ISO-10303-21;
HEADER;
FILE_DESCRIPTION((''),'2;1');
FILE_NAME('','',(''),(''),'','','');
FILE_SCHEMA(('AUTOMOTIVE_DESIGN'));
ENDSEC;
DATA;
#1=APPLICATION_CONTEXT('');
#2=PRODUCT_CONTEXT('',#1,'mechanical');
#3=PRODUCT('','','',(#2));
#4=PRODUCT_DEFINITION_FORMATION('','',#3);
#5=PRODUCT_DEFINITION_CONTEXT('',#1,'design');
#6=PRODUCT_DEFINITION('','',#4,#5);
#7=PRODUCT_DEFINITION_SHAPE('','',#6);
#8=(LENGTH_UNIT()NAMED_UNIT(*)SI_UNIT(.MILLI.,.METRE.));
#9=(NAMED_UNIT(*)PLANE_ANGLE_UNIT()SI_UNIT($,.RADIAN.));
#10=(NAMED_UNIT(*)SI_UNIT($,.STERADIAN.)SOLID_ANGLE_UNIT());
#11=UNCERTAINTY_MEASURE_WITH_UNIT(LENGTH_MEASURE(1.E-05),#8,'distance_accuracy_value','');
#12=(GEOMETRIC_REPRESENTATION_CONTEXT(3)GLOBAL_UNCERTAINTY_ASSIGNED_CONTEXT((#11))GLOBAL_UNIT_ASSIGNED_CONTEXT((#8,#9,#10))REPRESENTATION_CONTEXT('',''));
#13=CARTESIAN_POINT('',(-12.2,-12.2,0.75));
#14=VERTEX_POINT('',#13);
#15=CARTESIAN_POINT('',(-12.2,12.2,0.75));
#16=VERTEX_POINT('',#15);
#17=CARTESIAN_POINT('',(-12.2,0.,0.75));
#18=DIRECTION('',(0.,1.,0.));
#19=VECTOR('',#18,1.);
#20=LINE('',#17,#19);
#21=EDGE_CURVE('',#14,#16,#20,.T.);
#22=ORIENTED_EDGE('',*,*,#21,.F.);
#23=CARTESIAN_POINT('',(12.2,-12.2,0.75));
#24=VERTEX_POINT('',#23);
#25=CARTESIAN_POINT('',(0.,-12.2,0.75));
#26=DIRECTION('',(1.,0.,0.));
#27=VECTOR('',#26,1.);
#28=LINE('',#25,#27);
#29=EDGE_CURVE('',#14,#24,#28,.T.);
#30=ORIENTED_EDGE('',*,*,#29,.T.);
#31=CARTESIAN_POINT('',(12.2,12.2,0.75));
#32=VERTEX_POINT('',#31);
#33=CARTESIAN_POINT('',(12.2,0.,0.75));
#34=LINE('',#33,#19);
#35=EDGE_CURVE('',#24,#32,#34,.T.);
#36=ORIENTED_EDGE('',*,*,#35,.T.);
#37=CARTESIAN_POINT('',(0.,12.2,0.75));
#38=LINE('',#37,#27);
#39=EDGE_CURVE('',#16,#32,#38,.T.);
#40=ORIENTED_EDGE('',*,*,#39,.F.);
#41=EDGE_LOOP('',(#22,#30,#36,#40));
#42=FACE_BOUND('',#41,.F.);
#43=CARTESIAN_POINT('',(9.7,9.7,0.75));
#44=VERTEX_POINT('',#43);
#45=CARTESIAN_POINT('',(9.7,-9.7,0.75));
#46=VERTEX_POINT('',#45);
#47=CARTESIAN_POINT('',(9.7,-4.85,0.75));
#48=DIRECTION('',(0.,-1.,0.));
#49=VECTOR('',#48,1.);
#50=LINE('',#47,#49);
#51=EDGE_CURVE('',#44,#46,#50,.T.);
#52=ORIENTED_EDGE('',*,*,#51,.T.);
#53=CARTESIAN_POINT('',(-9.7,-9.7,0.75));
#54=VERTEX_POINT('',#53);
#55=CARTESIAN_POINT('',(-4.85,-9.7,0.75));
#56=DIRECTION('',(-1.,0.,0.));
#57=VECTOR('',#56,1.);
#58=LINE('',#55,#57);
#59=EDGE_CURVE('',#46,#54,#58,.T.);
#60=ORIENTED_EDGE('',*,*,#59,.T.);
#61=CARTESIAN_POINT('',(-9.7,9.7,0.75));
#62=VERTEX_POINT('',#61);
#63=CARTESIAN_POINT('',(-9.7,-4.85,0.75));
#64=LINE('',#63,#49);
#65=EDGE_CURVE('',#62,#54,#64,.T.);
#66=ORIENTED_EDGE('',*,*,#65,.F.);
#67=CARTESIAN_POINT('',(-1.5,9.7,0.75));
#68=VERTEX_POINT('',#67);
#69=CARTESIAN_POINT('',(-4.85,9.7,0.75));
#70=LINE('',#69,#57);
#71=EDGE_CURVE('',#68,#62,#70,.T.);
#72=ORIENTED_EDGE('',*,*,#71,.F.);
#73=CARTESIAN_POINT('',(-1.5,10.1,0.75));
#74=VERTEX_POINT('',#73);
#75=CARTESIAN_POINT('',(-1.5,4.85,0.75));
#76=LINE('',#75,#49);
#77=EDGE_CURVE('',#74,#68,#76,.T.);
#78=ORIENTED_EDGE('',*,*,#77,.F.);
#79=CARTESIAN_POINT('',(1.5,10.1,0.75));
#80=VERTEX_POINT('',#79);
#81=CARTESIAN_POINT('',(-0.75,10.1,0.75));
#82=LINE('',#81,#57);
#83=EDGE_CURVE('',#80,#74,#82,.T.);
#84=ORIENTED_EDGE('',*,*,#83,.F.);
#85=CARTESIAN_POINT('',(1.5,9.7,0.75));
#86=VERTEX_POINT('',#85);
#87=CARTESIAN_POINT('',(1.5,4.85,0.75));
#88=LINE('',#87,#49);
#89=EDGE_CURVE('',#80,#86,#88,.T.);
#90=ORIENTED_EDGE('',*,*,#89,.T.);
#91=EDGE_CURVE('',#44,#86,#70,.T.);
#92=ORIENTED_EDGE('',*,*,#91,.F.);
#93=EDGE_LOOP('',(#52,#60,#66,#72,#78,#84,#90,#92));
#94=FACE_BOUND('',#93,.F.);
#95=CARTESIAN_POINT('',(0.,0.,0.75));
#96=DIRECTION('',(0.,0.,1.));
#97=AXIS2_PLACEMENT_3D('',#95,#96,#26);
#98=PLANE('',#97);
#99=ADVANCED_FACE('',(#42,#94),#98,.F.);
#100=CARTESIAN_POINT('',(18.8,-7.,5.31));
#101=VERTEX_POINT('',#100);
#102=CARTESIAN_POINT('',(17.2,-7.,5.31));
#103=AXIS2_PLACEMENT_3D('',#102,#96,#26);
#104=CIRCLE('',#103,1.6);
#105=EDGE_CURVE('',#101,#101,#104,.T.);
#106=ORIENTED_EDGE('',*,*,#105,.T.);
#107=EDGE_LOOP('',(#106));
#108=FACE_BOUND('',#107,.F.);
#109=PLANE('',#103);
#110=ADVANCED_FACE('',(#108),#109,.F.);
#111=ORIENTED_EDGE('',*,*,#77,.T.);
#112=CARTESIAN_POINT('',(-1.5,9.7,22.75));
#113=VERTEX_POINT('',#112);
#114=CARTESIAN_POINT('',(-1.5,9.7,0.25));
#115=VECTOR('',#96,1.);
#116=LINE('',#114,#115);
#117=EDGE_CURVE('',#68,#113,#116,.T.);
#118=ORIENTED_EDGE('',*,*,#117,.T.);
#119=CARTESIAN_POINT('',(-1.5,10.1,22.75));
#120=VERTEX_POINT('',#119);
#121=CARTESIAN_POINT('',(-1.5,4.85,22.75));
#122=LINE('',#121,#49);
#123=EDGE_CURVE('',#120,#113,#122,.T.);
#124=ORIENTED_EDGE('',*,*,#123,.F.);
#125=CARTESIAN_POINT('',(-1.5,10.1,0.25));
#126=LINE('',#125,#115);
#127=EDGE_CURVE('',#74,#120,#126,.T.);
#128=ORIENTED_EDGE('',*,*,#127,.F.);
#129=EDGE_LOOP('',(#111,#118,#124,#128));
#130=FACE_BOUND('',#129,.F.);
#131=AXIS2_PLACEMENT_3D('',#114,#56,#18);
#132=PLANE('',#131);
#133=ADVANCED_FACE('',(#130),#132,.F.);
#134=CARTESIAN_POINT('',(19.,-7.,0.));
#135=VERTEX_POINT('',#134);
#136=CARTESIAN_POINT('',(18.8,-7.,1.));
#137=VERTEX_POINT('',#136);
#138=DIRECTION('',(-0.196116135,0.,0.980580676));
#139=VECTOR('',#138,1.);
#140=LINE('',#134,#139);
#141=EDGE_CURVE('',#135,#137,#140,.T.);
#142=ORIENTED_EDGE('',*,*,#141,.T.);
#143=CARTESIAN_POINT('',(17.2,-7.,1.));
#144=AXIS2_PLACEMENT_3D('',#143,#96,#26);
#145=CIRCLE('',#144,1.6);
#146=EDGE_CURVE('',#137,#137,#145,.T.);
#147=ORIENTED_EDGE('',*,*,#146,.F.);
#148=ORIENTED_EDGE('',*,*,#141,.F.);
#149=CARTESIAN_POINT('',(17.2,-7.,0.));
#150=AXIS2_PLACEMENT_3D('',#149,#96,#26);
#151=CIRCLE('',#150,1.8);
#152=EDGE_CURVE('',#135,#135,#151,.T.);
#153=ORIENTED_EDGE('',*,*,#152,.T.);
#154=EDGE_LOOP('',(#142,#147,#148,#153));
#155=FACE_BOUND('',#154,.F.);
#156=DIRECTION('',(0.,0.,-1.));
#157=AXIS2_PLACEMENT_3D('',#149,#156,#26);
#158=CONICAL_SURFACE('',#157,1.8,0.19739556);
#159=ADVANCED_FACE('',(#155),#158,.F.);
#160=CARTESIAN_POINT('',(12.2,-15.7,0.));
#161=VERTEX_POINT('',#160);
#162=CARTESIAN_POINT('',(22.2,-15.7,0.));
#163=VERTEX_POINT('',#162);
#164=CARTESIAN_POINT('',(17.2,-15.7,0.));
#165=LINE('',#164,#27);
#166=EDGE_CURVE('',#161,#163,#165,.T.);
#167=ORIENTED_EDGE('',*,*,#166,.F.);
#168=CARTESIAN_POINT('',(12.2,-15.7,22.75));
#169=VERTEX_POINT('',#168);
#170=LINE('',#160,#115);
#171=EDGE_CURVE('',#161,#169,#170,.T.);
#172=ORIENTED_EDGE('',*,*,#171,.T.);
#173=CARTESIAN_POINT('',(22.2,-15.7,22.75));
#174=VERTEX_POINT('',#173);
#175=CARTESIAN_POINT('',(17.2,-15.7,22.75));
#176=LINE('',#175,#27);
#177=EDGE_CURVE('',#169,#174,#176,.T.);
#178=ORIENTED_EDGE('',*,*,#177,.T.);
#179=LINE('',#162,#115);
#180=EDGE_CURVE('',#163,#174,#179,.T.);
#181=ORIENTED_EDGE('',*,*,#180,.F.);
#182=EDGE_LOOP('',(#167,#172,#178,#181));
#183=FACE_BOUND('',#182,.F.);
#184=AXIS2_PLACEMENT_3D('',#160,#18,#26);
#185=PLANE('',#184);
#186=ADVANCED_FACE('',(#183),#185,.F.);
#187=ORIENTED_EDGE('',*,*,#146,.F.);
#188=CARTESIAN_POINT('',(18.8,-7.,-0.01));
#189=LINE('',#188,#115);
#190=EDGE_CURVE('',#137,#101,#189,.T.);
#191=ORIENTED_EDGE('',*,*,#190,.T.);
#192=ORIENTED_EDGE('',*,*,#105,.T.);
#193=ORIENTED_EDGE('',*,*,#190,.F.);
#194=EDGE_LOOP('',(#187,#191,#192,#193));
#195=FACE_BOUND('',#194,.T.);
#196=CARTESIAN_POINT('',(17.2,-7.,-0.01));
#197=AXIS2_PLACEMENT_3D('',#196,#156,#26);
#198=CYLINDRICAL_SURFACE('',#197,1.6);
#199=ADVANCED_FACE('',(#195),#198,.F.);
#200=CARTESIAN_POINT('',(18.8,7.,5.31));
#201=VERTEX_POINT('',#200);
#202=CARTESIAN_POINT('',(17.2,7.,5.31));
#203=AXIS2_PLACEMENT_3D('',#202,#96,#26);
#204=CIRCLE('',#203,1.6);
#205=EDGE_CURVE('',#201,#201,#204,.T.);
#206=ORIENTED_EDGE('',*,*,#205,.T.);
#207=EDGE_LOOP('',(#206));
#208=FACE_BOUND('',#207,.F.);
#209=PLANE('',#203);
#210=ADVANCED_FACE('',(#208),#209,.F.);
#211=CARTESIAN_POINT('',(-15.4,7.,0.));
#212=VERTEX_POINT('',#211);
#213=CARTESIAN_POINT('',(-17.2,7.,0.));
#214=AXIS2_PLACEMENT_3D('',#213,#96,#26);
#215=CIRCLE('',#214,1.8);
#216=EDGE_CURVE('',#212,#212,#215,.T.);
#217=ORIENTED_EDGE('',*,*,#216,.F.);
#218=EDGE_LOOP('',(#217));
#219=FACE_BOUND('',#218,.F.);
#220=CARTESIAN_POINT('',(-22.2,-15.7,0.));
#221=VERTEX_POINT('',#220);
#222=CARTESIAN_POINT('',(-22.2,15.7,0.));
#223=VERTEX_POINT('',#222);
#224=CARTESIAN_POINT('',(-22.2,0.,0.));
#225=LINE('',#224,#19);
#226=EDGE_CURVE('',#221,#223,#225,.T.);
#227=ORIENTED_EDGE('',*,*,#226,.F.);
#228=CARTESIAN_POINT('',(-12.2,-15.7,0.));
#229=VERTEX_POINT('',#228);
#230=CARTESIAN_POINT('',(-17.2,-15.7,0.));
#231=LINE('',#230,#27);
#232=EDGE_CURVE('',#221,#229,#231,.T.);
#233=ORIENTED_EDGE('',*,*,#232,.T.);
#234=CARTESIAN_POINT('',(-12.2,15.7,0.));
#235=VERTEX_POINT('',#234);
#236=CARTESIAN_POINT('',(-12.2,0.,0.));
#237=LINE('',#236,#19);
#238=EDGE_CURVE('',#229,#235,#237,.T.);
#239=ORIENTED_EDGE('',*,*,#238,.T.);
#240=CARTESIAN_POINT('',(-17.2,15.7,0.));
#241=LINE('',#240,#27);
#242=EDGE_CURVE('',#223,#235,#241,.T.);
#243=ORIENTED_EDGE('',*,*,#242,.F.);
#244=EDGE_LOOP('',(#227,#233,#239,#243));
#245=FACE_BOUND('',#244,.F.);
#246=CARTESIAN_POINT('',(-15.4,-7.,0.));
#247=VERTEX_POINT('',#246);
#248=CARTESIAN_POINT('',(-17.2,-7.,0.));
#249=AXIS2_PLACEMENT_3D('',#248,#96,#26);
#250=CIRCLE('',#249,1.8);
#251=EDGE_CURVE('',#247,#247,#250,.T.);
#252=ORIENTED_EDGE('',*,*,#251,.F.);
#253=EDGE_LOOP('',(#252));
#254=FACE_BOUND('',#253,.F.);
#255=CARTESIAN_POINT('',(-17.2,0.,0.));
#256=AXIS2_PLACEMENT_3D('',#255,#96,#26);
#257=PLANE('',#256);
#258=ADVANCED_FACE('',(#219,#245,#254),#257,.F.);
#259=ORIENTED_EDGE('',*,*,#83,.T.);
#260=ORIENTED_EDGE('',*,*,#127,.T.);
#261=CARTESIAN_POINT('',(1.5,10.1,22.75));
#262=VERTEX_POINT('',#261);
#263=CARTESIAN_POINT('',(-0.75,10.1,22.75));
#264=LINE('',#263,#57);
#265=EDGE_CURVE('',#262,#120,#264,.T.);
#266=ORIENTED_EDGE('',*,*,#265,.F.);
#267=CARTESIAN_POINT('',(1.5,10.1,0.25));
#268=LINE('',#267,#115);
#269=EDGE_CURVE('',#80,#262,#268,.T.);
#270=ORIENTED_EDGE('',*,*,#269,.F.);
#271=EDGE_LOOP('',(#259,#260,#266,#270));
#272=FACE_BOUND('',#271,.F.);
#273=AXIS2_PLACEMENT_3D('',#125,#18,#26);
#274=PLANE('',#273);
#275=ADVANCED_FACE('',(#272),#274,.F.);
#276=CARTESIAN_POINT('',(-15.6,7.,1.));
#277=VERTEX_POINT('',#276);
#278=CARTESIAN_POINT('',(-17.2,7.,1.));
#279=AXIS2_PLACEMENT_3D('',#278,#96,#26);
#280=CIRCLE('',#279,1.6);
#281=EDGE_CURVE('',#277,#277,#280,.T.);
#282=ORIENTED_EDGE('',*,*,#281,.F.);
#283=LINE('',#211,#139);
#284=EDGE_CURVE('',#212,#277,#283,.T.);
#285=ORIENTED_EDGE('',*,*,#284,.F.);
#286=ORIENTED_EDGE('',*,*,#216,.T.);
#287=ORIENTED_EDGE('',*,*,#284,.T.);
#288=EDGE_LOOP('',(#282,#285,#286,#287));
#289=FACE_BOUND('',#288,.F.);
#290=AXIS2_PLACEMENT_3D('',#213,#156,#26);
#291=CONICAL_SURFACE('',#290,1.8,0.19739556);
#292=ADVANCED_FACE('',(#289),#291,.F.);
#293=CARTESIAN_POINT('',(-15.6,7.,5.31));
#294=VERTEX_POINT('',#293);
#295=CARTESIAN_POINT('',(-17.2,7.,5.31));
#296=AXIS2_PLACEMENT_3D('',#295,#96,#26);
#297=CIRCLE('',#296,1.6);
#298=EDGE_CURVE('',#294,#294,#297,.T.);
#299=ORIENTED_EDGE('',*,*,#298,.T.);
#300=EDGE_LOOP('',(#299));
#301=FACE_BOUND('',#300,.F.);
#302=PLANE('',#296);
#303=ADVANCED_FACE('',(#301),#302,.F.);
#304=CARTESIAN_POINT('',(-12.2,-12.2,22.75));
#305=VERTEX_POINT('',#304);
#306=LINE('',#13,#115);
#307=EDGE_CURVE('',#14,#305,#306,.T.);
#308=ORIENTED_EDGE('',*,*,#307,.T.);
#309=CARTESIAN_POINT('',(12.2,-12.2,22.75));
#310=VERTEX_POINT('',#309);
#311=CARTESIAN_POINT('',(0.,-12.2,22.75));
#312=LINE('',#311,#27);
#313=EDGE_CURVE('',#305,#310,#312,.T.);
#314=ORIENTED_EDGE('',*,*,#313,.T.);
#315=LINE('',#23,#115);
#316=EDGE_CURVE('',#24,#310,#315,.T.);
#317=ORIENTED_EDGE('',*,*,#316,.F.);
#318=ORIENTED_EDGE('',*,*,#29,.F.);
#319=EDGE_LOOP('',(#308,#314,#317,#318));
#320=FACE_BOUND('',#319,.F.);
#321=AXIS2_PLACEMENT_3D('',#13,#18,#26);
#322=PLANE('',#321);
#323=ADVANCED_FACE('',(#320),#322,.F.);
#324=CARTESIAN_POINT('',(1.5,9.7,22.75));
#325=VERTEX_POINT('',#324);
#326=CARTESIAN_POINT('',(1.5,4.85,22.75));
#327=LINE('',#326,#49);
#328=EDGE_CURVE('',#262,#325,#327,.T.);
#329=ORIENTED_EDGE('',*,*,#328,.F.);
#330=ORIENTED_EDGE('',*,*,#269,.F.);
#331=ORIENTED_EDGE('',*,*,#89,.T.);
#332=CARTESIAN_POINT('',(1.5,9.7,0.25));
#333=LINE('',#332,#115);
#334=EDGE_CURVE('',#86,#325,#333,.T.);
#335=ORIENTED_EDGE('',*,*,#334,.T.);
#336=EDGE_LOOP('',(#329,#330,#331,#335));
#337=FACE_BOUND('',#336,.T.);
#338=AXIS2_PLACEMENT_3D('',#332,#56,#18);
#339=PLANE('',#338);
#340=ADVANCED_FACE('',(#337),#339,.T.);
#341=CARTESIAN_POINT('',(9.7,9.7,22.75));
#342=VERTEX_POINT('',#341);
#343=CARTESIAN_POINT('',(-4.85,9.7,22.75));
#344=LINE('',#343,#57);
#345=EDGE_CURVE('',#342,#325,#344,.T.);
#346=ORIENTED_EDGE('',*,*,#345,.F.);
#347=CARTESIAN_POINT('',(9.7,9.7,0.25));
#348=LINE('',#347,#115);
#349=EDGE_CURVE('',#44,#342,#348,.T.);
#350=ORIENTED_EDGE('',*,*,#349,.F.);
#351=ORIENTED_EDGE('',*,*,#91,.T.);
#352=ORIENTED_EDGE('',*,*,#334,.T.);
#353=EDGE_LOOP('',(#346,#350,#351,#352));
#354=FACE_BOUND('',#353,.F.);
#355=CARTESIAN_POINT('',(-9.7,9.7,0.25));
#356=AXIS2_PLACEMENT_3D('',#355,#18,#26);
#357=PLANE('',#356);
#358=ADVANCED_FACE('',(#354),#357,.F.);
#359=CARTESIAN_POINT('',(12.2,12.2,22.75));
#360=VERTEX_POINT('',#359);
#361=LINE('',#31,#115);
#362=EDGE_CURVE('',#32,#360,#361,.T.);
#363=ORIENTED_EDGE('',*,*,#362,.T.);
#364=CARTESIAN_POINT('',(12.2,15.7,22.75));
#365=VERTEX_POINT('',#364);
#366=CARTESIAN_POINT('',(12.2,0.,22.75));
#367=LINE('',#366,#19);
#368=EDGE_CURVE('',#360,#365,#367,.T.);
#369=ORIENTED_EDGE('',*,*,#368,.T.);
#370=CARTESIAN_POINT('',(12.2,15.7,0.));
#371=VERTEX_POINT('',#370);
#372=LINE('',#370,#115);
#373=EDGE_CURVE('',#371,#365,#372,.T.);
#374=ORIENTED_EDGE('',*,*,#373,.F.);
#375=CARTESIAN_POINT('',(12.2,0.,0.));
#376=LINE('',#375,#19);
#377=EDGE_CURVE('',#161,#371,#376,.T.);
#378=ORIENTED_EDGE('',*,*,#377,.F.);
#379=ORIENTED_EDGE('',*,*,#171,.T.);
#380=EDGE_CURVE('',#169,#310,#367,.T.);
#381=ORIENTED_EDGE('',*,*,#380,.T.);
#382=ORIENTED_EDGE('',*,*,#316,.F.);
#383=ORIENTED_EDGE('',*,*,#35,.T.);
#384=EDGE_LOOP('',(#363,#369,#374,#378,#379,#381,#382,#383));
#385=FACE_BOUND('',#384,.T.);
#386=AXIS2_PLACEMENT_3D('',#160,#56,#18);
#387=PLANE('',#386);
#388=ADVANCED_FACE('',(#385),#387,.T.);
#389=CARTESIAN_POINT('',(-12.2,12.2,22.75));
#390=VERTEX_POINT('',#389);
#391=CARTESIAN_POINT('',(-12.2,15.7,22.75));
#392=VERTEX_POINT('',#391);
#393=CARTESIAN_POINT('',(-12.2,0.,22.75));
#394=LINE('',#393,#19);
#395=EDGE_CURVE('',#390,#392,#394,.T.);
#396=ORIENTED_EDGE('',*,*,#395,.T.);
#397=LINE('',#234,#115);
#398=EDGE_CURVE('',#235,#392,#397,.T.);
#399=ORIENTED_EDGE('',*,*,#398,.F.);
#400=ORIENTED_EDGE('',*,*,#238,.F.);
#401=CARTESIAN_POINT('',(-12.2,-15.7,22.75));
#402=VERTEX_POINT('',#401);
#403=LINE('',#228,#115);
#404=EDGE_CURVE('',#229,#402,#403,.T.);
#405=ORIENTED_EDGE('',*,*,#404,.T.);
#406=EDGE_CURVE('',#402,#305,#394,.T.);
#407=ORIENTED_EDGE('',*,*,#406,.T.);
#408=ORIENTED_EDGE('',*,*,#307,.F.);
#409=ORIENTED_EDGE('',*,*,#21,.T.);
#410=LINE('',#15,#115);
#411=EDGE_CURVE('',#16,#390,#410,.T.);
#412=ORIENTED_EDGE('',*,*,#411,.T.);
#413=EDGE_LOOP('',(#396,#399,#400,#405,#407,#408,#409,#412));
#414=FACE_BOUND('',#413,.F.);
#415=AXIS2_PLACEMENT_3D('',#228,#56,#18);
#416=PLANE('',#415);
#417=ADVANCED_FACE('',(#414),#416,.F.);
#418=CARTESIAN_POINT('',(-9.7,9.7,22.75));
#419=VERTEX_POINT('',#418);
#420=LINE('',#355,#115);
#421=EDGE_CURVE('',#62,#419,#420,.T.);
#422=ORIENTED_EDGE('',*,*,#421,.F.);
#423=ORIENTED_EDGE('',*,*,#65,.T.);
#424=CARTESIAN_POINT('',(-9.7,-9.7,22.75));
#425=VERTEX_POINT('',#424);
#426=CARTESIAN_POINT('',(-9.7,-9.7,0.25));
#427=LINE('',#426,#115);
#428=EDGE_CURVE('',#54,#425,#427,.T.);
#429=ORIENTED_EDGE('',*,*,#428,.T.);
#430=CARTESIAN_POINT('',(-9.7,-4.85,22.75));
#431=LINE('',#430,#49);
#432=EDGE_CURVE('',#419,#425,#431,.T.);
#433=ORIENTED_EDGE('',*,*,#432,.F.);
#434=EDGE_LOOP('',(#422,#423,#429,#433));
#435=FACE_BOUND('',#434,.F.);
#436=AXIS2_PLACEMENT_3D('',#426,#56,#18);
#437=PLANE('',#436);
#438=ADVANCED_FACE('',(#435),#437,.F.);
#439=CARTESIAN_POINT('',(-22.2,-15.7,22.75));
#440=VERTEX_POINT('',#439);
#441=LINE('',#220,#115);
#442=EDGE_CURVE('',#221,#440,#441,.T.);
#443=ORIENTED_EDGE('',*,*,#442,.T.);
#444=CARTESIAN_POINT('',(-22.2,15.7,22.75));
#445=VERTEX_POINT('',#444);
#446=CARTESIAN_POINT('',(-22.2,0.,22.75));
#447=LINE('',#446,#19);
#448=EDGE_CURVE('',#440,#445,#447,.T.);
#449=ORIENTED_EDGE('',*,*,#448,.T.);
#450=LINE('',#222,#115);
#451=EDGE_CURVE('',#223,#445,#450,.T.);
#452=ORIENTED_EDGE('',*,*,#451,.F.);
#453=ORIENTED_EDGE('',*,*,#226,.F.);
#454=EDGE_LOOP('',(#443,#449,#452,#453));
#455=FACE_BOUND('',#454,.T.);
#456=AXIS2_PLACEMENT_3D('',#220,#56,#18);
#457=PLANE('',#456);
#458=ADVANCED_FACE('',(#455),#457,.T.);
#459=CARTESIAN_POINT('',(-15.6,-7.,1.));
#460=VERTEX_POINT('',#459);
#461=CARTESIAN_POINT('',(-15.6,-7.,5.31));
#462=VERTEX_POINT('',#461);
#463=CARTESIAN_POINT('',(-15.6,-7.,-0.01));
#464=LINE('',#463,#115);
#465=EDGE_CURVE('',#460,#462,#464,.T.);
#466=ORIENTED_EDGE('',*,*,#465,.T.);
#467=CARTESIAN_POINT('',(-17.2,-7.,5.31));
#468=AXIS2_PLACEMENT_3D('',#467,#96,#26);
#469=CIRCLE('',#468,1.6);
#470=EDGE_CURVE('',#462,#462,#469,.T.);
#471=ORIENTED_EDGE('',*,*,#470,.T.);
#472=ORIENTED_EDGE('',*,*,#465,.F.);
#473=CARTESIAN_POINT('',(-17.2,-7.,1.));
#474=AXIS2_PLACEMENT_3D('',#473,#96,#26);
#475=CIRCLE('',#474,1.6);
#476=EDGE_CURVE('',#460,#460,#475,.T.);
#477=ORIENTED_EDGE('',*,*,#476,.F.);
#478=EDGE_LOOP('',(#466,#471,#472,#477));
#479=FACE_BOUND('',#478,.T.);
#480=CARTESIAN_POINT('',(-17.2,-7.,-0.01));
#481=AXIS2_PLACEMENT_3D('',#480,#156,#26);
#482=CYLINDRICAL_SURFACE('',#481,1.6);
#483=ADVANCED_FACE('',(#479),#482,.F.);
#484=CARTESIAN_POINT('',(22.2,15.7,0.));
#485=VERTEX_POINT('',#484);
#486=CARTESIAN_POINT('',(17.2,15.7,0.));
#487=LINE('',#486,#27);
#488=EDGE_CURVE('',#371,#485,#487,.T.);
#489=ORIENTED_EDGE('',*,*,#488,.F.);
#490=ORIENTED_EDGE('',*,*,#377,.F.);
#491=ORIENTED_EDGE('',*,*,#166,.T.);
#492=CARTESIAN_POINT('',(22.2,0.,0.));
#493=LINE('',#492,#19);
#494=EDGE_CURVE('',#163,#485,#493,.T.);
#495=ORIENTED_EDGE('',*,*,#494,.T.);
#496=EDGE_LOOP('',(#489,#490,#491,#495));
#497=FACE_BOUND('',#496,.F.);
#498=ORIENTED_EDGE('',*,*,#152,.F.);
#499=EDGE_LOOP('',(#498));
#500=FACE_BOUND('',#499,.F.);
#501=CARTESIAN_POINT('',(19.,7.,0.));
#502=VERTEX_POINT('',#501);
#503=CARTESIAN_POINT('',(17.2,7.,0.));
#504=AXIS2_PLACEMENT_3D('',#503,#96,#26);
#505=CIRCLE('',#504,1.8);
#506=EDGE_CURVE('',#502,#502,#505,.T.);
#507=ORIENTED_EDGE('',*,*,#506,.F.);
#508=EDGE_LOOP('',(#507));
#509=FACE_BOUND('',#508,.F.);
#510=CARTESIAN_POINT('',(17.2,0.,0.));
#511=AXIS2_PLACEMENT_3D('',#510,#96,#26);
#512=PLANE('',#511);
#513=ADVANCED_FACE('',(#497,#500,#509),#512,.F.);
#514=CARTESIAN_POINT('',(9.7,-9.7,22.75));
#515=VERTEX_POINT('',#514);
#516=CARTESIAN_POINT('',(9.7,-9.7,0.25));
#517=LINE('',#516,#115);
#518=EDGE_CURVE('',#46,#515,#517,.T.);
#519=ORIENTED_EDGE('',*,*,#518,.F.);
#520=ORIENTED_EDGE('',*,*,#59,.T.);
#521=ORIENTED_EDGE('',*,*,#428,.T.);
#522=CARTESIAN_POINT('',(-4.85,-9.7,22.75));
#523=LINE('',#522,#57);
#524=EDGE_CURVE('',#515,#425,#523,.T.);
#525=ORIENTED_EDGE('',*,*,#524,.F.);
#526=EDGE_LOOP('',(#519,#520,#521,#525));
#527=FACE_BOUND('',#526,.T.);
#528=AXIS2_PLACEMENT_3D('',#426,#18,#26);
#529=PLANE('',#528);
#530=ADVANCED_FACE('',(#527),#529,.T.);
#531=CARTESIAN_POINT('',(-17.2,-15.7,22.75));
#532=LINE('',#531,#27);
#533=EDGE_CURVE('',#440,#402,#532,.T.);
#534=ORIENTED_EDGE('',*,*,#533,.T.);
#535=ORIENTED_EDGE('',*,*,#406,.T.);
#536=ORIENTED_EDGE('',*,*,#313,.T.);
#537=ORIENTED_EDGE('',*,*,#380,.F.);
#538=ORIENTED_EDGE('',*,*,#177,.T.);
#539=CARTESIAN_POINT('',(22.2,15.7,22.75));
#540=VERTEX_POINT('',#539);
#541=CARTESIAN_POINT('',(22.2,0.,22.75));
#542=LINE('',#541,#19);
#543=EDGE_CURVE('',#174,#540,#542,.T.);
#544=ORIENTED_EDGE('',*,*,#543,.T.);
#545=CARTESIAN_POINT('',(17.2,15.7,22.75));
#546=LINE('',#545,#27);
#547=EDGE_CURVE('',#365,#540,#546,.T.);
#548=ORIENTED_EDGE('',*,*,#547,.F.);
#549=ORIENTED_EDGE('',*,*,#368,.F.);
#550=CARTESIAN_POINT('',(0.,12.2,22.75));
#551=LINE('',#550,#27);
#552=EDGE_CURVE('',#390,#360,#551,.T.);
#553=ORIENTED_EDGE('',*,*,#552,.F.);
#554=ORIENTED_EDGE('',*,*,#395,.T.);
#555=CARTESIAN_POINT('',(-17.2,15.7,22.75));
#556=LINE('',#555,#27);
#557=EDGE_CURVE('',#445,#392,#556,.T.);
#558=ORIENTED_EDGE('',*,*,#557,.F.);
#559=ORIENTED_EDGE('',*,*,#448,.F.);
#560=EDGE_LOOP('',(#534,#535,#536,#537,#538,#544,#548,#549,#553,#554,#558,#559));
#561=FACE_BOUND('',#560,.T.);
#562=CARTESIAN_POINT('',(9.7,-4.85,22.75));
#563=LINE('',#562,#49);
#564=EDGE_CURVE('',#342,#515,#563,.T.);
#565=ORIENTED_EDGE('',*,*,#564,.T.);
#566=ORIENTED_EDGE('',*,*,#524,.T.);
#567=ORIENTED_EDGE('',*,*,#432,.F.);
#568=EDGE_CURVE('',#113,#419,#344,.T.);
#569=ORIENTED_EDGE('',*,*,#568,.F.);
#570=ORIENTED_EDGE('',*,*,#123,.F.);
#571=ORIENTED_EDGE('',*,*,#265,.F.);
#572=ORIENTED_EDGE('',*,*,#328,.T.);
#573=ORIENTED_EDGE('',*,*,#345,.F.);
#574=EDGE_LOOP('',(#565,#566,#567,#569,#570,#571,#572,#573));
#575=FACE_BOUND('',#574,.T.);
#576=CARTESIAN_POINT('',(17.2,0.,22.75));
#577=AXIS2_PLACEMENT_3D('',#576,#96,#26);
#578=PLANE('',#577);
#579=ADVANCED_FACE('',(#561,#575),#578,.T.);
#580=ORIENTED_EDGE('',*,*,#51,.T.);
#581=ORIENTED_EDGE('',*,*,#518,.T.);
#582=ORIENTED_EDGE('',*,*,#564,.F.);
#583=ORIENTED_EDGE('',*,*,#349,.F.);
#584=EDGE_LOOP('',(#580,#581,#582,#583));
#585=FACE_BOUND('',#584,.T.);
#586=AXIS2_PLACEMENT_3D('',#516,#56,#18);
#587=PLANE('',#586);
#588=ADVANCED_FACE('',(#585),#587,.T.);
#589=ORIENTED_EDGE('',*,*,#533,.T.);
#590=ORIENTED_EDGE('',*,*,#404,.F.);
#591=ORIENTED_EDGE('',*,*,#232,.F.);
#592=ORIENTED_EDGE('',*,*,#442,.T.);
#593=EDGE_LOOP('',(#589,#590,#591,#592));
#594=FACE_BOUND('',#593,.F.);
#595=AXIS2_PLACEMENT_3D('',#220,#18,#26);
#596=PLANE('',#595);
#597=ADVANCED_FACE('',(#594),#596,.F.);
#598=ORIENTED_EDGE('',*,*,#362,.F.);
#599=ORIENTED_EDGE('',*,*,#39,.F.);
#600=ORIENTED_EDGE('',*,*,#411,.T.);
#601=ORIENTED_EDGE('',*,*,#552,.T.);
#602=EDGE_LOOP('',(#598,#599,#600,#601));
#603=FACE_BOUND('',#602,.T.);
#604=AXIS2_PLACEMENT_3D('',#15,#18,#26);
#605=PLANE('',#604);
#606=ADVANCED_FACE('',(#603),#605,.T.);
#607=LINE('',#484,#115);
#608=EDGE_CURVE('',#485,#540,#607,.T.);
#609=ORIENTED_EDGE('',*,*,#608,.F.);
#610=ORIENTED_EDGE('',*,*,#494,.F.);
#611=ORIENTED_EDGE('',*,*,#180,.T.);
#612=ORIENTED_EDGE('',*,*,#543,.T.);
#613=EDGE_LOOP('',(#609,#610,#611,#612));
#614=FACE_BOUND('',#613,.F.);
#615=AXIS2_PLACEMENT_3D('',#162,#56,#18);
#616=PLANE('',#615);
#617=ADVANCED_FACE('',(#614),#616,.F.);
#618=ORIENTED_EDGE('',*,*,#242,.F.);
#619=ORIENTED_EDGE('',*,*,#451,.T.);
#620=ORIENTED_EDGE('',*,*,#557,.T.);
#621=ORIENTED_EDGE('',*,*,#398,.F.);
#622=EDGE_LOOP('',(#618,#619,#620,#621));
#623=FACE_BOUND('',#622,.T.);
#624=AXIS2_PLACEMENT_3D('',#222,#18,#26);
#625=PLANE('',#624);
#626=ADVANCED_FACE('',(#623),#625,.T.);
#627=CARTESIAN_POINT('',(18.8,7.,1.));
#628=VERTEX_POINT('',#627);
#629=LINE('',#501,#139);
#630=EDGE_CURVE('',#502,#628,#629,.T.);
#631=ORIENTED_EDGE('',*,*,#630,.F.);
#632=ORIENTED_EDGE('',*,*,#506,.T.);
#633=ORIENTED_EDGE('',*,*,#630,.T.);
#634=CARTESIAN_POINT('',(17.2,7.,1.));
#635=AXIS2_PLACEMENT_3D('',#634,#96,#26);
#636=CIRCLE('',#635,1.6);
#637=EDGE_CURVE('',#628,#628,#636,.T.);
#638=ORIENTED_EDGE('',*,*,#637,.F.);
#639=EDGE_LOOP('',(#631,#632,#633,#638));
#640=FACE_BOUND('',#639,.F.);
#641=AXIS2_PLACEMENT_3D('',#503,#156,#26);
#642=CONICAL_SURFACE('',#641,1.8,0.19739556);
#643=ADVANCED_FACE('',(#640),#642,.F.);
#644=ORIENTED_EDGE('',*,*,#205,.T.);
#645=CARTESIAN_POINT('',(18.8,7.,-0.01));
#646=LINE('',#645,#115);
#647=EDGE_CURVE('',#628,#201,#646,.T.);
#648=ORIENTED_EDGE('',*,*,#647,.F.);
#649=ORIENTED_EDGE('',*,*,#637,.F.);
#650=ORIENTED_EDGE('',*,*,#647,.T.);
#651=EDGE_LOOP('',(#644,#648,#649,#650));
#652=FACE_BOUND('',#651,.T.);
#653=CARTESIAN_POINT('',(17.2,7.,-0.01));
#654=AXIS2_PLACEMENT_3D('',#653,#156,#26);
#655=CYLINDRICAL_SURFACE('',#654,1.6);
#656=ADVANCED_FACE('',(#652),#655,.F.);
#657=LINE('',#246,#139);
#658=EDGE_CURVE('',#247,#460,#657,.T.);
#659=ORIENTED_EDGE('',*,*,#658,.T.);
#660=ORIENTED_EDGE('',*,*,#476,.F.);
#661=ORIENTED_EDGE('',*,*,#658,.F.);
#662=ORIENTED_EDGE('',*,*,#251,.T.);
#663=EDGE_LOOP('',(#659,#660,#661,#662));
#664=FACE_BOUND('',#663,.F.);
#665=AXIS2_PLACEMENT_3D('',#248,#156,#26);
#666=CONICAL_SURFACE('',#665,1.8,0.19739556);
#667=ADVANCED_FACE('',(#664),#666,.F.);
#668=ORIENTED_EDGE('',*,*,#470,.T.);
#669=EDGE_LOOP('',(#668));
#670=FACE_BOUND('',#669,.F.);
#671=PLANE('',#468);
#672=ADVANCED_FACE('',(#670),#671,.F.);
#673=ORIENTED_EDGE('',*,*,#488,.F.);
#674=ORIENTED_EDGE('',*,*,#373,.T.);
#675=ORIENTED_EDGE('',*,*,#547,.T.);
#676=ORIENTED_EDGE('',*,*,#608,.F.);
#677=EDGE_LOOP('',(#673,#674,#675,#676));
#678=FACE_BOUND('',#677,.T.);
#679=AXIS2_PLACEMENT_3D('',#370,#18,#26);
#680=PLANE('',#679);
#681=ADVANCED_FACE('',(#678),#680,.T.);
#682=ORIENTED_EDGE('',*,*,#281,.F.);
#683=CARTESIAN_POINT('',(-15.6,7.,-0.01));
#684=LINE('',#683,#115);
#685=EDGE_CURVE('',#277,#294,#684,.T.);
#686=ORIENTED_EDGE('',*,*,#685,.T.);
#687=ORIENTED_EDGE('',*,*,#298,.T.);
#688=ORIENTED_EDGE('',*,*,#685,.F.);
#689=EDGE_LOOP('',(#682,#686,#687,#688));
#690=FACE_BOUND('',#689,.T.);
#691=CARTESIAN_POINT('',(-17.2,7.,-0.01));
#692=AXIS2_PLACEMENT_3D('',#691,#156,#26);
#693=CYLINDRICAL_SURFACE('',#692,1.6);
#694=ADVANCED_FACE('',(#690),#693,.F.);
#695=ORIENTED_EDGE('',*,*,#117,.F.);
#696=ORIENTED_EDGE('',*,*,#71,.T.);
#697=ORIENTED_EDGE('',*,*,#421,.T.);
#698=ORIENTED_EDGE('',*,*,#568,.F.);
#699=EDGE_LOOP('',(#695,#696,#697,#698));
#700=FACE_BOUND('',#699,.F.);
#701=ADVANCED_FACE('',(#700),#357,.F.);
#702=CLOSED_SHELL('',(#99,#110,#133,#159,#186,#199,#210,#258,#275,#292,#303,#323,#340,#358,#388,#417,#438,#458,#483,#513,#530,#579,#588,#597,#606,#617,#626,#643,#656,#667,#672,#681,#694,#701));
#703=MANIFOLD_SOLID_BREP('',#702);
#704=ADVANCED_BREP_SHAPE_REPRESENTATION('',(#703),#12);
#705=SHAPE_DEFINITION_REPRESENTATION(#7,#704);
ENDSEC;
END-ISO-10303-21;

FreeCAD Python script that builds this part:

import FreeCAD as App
import Part
import Sketcher

doc = App.newDocument("Part")
body = doc.addObject("PartDesign::Body", "Body")

sketch1 = body.newObject("Sketcher::SketchObject", "Sketch")
sketch1.AttachmentSupport = (doc.getObject("XZ_Plane"), [""])
sketch1.MapMode = "FlatFace"
sketch1.addGeometry(Part.LineSegment(App.Vector(0, 0, 0), App.Vector(1.8, 0, 0)), False)
sketch1.addGeometry(Part.LineSegment(App.Vector(1.8, 0, 0), App.Vector(1.6, 1, 0)), False)
sketch1.addGeometry(Part.LineSegment(App.Vector(1.6, 1, 0), App.Vector(0, 1, 0)), False)
sketch1.addGeometry(Part.LineSegment(App.Vector(0, 1, 0), App.Vector(0, 0, 0)), False)
sketch1.addConstraint(Sketcher.Constraint("Coincident", 0, 2, 1, 1))
sketch1.addConstraint(Sketcher.Constraint("Coincident", 1, 2, 2, 1))
sketch1.addConstraint(Sketcher.Constraint("Coincident", 2, 2, 3, 1))
sketch1.addConstraint(Sketcher.Constraint("Coincident", 3, 2, 0, 1))
sketch1.addConstraint(Sketcher.Constraint("Horizontal", 0))
sketch1.addConstraint(Sketcher.Constraint("Horizontal", 2))
sketch1.addConstraint(Sketcher.Constraint("Vertical", 3))
sketch1.addConstraint(Sketcher.Constraint("Coincident", 3, 2, -1, 1))
sketch1.addConstraint(Sketcher.Constraint("DistanceY", 3, 2, 3, 1, 1.0))
sketch1.addConstraint(Sketcher.Constraint("DistanceX", 0, 1, 0, 2, 1.8))
sketch1.addConstraint(Sketcher.Constraint("DistanceX", 2, 2, 2, 1, 1.6))
revolution = body.newObject("PartDesign::Revolution", "Revolution")
revolution.Profile = sketch1
revolution.ReferenceAxis = (sketch1, ["V_Axis"])
revolution.Angle = 360
body2 = doc.addObject("PartDesign::Body", "Body001")

sketch2 = body2.newObject("Sketcher::SketchObject", "Sketch001")
sketch2.AttachmentSupport = (doc.getObject("XY_Plane001"), [""])
sketch2.MapMode = "FlatFace"
sketch2.AttachmentOffset = App.Placement(App.Vector(0, 0, -0.01), App.Rotation())
sketch2.addGeometry(Part.Circle(App.Vector(0, 0, 0), App.Vector(0, 0, 1), 1.6), False)
sketch2.addConstraint(Sketcher.Constraint("Coincident", 0, 3, -1, 1))
sketch2.addConstraint(Sketcher.Constraint("Diameter", 0, 3.2))
pad1 = body2.newObject("PartDesign::Pad", "Pad")
pad1.Profile = sketch2
pad1.Length = 5.32
doc.recompute()

boolean = body2.newObject("PartDesign::Boolean", "Boolean")
boolean.Type = "Fuse"
boolean.addObjects([body])
body3 = doc.addObject("PartDesign::Body", "Body002")
doc.recompute()

body2.Placement = App.Placement(App.Vector(17.2, 7, 0), App.Rotation(App.Vector(0, 0, 1), 0))
boolean2 = body3.newObject("PartDesign::Boolean", "Boolean001")
boolean2.Type = "Fuse"
boolean2.addObjects([body2])
body4 = doc.addObject("PartDesign::Body", "Body003")

sketch3 = body4.newObject("Sketcher::SketchObject", "Sketch002")
sketch3.AttachmentSupport = (doc.getObject("XZ_Plane003"), [""])
sketch3.MapMode = "FlatFace"
sketch3.addGeometry(Part.LineSegment(App.Vector(0, 0, 0), App.Vector(1.8, 0, 0)), False)
sketch3.addGeometry(Part.LineSegment(App.Vector(1.8, 0, 0), App.Vector(1.6, 1, 0)), False)
sketch3.addGeometry(Part.LineSegment(App.Vector(1.6, 1, 0), App.Vector(0, 1, 0)), False)
sketch3.addGeometry(Part.LineSegment(App.Vector(0, 1, 0), App.Vector(0, 0, 0)), False)
sketch3.addConstraint(Sketcher.Constraint("Coincident", 0, 2, 1, 1))
sketch3.addConstraint(Sketcher.Constraint("Coincident", 1, 2, 2, 1))
sketch3.addConstraint(Sketcher.Constraint("Coincident", 2, 2, 3, 1))
sketch3.addConstraint(Sketcher.Constraint("Coincident", 3, 2, 0, 1))
sketch3.addConstraint(Sketcher.Constraint("Horizontal", 0))
sketch3.addConstraint(Sketcher.Constraint("Horizontal", 2))
sketch3.addConstraint(Sketcher.Constraint("Vertical", 3))
sketch3.addConstraint(Sketcher.Constraint("Coincident", 3, 2, -1, 1))
sketch3.addConstraint(Sketcher.Constraint("DistanceY", 3, 2, 3, 1, 1.0))
sketch3.addConstraint(Sketcher.Constraint("DistanceX", 0, 1, 0, 2, 1.8))
sketch3.addConstraint(Sketcher.Constraint("DistanceX", 2, 2, 2, 1, 1.6))
revolution2 = body4.newObject("PartDesign::Revolution", "Revolution001")
revolution2.Profile = sketch3
revolution2.ReferenceAxis = (sketch3, ["V_Axis"])
revolution2.Angle = 360
body5 = doc.addObject("PartDesign::Body", "Body004")

sketch4 = body5.newObject("Sketcher::SketchObject", "Sketch003")
sketch4.AttachmentSupport = (doc.getObject("XY_Plane004"), [""])
sketch4.MapMode = "FlatFace"
sketch4.AttachmentOffset = App.Placement(App.Vector(0, 0, -0.01), App.Rotation())
sketch4.addGeometry(Part.Circle(App.Vector(0, 0, 0), App.Vector(0, 0, 1), 1.6), False)
sketch4.addConstraint(Sketcher.Constraint("Coincident", 0, 3, -1, 1))
sketch4.addConstraint(Sketcher.Constraint("Diameter", 0, 3.2))
pad2 = body5.newObject("PartDesign::Pad", "Pad001")
pad2.Profile = sketch4
pad2.Length = 5.32
doc.recompute()

boolean3 = body5.newObject("PartDesign::Boolean", "Boolean002")
boolean3.Type = "Fuse"
boolean3.addObjects([body4])
body6 = doc.addObject("PartDesign::Body", "Body005")
body6.AllowCompound = True
doc.recompute()

body5.Placement = App.Placement(App.Vector(17.2, -7, 0), App.Rotation(App.Vector(0, 0, 1), 0))
boolean4 = body6.newObject("PartDesign::Boolean", "Boolean003")
boolean4.Type = "Fuse"
boolean4.addObjects([body5])
doc.recompute()

boolean5 = body6.newObject("PartDesign::Boolean", "Boolean004")
boolean5.Type = "Fuse"
boolean5.addObjects([body3])
body7 = doc.addObject("PartDesign::Body", "Body006")

sketch5 = body7.newObject("Sketcher::SketchObject", "Sketch004")
sketch5.AttachmentSupport = (doc.getObject("XY_Plane006"), [""])
sketch5.MapMode = "FlatFace"
sketch5.addGeometry(Part.Circle(App.Vector(17.2, 7, 0), App.Vector(0, 0, 1), 3.6), False)
sketch5.addConstraint(Sketcher.Constraint("Diameter", 0, 7.2))
sketch5.addConstraint(Sketcher.Constraint("DistanceY", -1, 1, 0, 3, 7.0))
sketch5.addConstraint(Sketcher.Constraint("DistanceX", -1, 1, 0, 3, 17.2))
pad3 = body7.newObject("PartDesign::Pad", "Pad002")
pad3.Profile = sketch5
pad3.Length = 6
body8 = doc.addObject("PartDesign::Body", "Body007")
body8.AllowCompound = True

sketch6 = body8.newObject("Sketcher::SketchObject", "Sketch005")
sketch6.AttachmentSupport = (doc.getObject("XY_Plane007"), [""])
sketch6.MapMode = "FlatFace"
sketch6.addGeometry(Part.Circle(App.Vector(17.2, -7, 0), App.Vector(0, 0, 1), 3.6), False)
sketch6.addConstraint(Sketcher.Constraint("Diameter", 0, 7.2))
sketch6.addConstraint(Sketcher.Constraint("DistanceY", 0, 3, -1, 1, 7.0))
sketch6.addConstraint(Sketcher.Constraint("DistanceX", -1, 1, 0, 3, 17.2))
pad4 = body8.newObject("PartDesign::Pad", "Pad003")
pad4.Profile = sketch6
pad4.Length = 6
doc.recompute()

boolean6 = body8.newObject("PartDesign::Boolean", "Boolean005")
boolean6.Type = "Fuse"
boolean6.addObjects([body7])
body9 = doc.addObject("PartDesign::Body", "Body008")

sketch7 = body9.newObject("Sketcher::SketchObject", "Sketch006")
sketch7.AttachmentSupport = (doc.getObject("XY_Plane008"), [""])
sketch7.MapMode = "FlatFace"
sketch7.addGeometry(Part.LineSegment(App.Vector(12, 16, 0), App.Vector(12, -16, 0)), False)
sketch7.addGeometry(Part.LineSegment(App.Vector(12, -16, 0), App.Vector(22, -16, 0)), False)
sketch7.addGeometry(Part.LineSegment(App.Vector(22, -16, 0), App.Vector(22, 16, 0)), False)
sketch7.addGeometry(Part.LineSegment(App.Vector(22, 16, 0), App.Vector(12, 16, 0)), False)
sketch7.addConstraint(Sketcher.Constraint("Coincident", 0, 2, 1, 1))
sketch7.addConstraint(Sketcher.Constraint("Coincident", 1, 2, 2, 1))
sketch7.addConstraint(Sketcher.Constraint("Coincident", 2, 2, 3, 1))
sketch7.addConstraint(Sketcher.Constraint("Coincident", 3, 2, 0, 1))
sketch7.addConstraint(Sketcher.Constraint("Vertical", 0))
sketch7.addConstraint(Sketcher.Constraint("Horizontal", 1))
sketch7.addConstraint(Sketcher.Constraint("Vertical", 2))
sketch7.addConstraint(Sketcher.Constraint("Horizontal", 3))
sketch7.addConstraint(Sketcher.Constraint("DistanceX", 1, 1, 1, 2, 10.0))
sketch7.addConstraint(Sketcher.Constraint("DistanceY", 0, 2, 0, 1, 31.4))
sketch7.addConstraint(Sketcher.Constraint("DistanceX", -1, 1, 0, 2, 12.2))
sketch7.addConstraint(Sketcher.Constraint("DistanceY", 0, 2, -1, 1, 15.7))
pad5 = body9.newObject("PartDesign::Pad", "Pad004")
pad5.Profile = sketch7
pad5.Length = 22.75
doc.recompute()

boolean7 = body9.newObject("PartDesign::Boolean", "Boolean006")
boolean7.Type = "Fuse"
boolean7.addObjects([body8])
doc.recompute()

boolean8 = body9.newObject("PartDesign::Boolean", "Boolean007")
boolean8.Type = "Cut"
boolean8.addObjects([body6])
body10 = doc.addObject("PartDesign::Body", "Body009")

sketch8 = body10.newObject("Sketcher::SketchObject", "Sketch007")
sketch8.AttachmentSupport = (doc.getObject("XZ_Plane009"), [""])
sketch8.MapMode = "FlatFace"
sketch8.addGeometry(Part.LineSegment(App.Vector(0, 0, 0), App.Vector(1.8, 0, 0)), False)
sketch8.addGeometry(Part.LineSegment(App.Vector(1.8, 0, 0), App.Vector(1.6, 1, 0)), False)
sketch8.addGeometry(Part.LineSegment(App.Vector(1.6, 1, 0), App.Vector(0, 1, 0)), False)
sketch8.addGeometry(Part.LineSegment(App.Vector(0, 1, 0), App.Vector(0, 0, 0)), False)
sketch8.addConstraint(Sketcher.Constraint("Coincident", 0, 2, 1, 1))
sketch8.addConstraint(Sketcher.Constraint("Coincident", 1, 2, 2, 1))
sketch8.addConstraint(Sketcher.Constraint("Coincident", 2, 2, 3, 1))
sketch8.addConstraint(Sketcher.Constraint("Coincident", 3, 2, 0, 1))
sketch8.addConstraint(Sketcher.Constraint("Horizontal", 0))
sketch8.addConstraint(Sketcher.Constraint("Horizontal", 2))
sketch8.addConstraint(Sketcher.Constraint("Vertical", 3))
sketch8.addConstraint(Sketcher.Constraint("Coincident", 3, 2, -1, 1))
sketch8.addConstraint(Sketcher.Constraint("DistanceY", 3, 2, 3, 1, 1.0))
sketch8.addConstraint(Sketcher.Constraint("DistanceX", 0, 1, 0, 2, 1.8))
sketch8.addConstraint(Sketcher.Constraint("DistanceX", 2, 2, 2, 1, 1.6))
revolution3 = body10.newObject("PartDesign::Revolution", "Revolution002")
revolution3.Profile = sketch8
revolution3.ReferenceAxis = (sketch8, ["V_Axis"])
revolution3.Angle = 360
body11 = doc.addObject("PartDesign::Body", "Body010")

sketch9 = body11.newObject("Sketcher::SketchObject", "Sketch008")
sketch9.AttachmentSupport = (doc.getObject("XY_Plane010"), [""])
sketch9.MapMode = "FlatFace"
sketch9.AttachmentOffset = App.Placement(App.Vector(0, 0, -0.01), App.Rotation())
sketch9.addGeometry(Part.Circle(App.Vector(0, 0, 0), App.Vector(0, 0, 1), 1.6), False)
sketch9.addConstraint(Sketcher.Constraint("Coincident", 0, 3, -1, 1))
sketch9.addConstraint(Sketcher.Constraint("Diameter", 0, 3.2))
pad6 = body11.newObject("PartDesign::Pad", "Pad005")
pad6.Profile = sketch9
pad6.Length = 5.32
doc.recompute()

boolean9 = body11.newObject("PartDesign::Boolean", "Boolean008")
boolean9.Type = "Fuse"
boolean9.addObjects([body10])
body12 = doc.addObject("PartDesign::Body", "Body011")
doc.recompute()

body11.Placement = App.Placement(App.Vector(-17.2, 7, 0), App.Rotation(App.Vector(0, 0, 1), 0))
boolean10 = body12.newObject("PartDesign::Boolean", "Boolean009")
boolean10.Type = "Fuse"
boolean10.addObjects([body11])
body13 = doc.addObject("PartDesign::Body", "Body012")

sketch10 = body13.newObject("Sketcher::SketchObject", "Sketch009")
sketch10.AttachmentSupport = (doc.getObject("XZ_Plane012"), [""])
sketch10.MapMode = "FlatFace"
sketch10.addGeometry(Part.LineSegment(App.Vector(0, 0, 0), App.Vector(1.8, 0, 0)), False)
sketch10.addGeometry(Part.LineSegment(App.Vector(1.8, 0, 0), App.Vector(1.6, 1, 0)), False)
sketch10.addGeometry(Part.LineSegment(App.Vector(1.6, 1, 0), App.Vector(0, 1, 0)), False)
sketch10.addGeometry(Part.LineSegment(App.Vector(0, 1, 0), App.Vector(0, 0, 0)), False)
sketch10.addConstraint(Sketcher.Constraint("Coincident", 0, 2, 1, 1))
sketch10.addConstraint(Sketcher.Constraint("Coincident", 1, 2, 2, 1))
sketch10.addConstraint(Sketcher.Constraint("Coincident", 2, 2, 3, 1))
sketch10.addConstraint(Sketcher.Constraint("Coincident", 3, 2, 0, 1))
sketch10.addConstraint(Sketcher.Constraint("Horizontal", 0))
sketch10.addConstraint(Sketcher.Constraint("Horizontal", 2))
sketch10.addConstraint(Sketcher.Constraint("Vertical", 3))
sketch10.addConstraint(Sketcher.Constraint("Coincident", 3, 2, -1, 1))
sketch10.addConstraint(Sketcher.Constraint("DistanceY", 3, 2, 3, 1, 1.0))
sketch10.addConstraint(Sketcher.Constraint("DistanceX", 0, 1, 0, 2, 1.8))
sketch10.addConstraint(Sketcher.Constraint("DistanceX", 2, 2, 2, 1, 1.6))
revolution4 = body13.newObject("PartDesign::Revolution", "Revolution003")
revolution4.Profile = sketch10
revolution4.ReferenceAxis = (sketch10, ["V_Axis"])
revolution4.Angle = 360
body14 = doc.addObject("PartDesign::Body", "Body013")

sketch11 = body14.newObject("Sketcher::SketchObject", "Sketch010")
sketch11.AttachmentSupport = (doc.getObject("XY_Plane013"), [""])
sketch11.MapMode = "FlatFace"
sketch11.AttachmentOffset = App.Placement(App.Vector(0, 0, -0.01), App.Rotation())
sketch11.addGeometry(Part.Circle(App.Vector(0, 0, 0), App.Vector(0, 0, 1), 1.6), False)
sketch11.addConstraint(Sketcher.Constraint("Coincident", 0, 3, -1, 1))
sketch11.addConstraint(Sketcher.Constraint("Diameter", 0, 3.2))
pad7 = body14.newObject("PartDesign::Pad", "Pad006")
pad7.Profile = sketch11
pad7.Length = 5.32
doc.recompute()

boolean11 = body14.newObject("PartDesign::Boolean", "Boolean010")
boolean11.Type = "Fuse"
boolean11.addObjects([body13])
body15 = doc.addObject("PartDesign::Body", "Body014")
body15.AllowCompound = True
doc.recompute()

body14.Placement = App.Placement(App.Vector(-17.2, -7, 0), App.Rotation(App.Vector(0, 0, 1), 0))
boolean12 = body15.newObject("PartDesign::Boolean", "Boolean011")
boolean12.Type = "Fuse"
boolean12.addObjects([body14])
doc.recompute()

boolean13 = body15.newObject("PartDesign::Boolean", "Boolean012")
boolean13.Type = "Fuse"
boolean13.addObjects([body12])
body16 = doc.addObject("PartDesign::Body", "Body015")

sketch12 = body16.newObject("Sketcher::SketchObject", "Sketch011")
sketch12.AttachmentSupport = (doc.getObject("XY_Plane015"), [""])
sketch12.MapMode = "FlatFace"
sketch12.addGeometry(Part.Circle(App.Vector(-17.2, 7, 0), App.Vector(0, 0, 1), 3.6), False)
sketch12.addConstraint(Sketcher.Constraint("Diameter", 0, 7.2))
sketch12.addConstraint(Sketcher.Constraint("DistanceY", -1, 1, 0, 3, 7.0))
sketch12.addConstraint(Sketcher.Constraint("DistanceX", 0, 3, -1, 1, 17.2))
pad8 = body16.newObject("PartDesign::Pad", "Pad007")
pad8.Profile = sketch12
pad8.Length = 6
body17 = doc.addObject("PartDesign::Body", "Body016")
body17.AllowCompound = True

sketch13 = body17.newObject("Sketcher::SketchObject", "Sketch012")
sketch13.AttachmentSupport = (doc.getObject("XY_Plane016"), [""])
sketch13.MapMode = "FlatFace"
sketch13.addGeometry(Part.Circle(App.Vector(-17.2, -7, 0), App.Vector(0, 0, 1), 3.6), False)
sketch13.addConstraint(Sketcher.Constraint("Diameter", 0, 7.2))
sketch13.addConstraint(Sketcher.Constraint("DistanceY", 0, 3, -1, 1, 7.0))
sketch13.addConstraint(Sketcher.Constraint("DistanceX", 0, 3, -1, 1, 17.2))
pad9 = body17.newObject("PartDesign::Pad", "Pad008")
pad9.Profile = sketch13
pad9.Length = 6
doc.recompute()

boolean14 = body17.newObject("PartDesign::Boolean", "Boolean013")
boolean14.Type = "Fuse"
boolean14.addObjects([body16])
body18 = doc.addObject("PartDesign::Body", "Body017")
body18.AllowCompound = True

sketch14 = body18.newObject("Sketcher::SketchObject", "Sketch013")
sketch14.AttachmentSupport = (doc.getObject("XY_Plane017"), [""])
sketch14.MapMode = "FlatFace"
sketch14.addGeometry(Part.LineSegment(App.Vector(-22, 16, 0), App.Vector(-22, -16, 0)), False)
sketch14.addGeometry(Part.LineSegment(App.Vector(-22, -16, 0), App.Vector(-12, -16, 0)), False)
sketch14.addGeometry(Part.LineSegment(App.Vector(-12, -16, 0), App.Vector(-12, 16, 0)), False)
sketch14.addGeometry(Part.LineSegment(App.Vector(-12, 16, 0), App.Vector(-22, 16, 0)), False)
sketch14.addConstraint(Sketcher.Constraint("Coincident", 0, 2, 1, 1))
sketch14.addConstraint(Sketcher.Constraint("Coincident", 1, 2, 2, 1))
sketch14.addConstraint(Sketcher.Constraint("Coincident", 2, 2, 3, 1))
sketch14.addConstraint(Sketcher.Constraint("Coincident", 3, 2, 0, 1))
sketch14.addConstraint(Sketcher.Constraint("Vertical", 0))
sketch14.addConstraint(Sketcher.Constraint("Horizontal", 1))
sketch14.addConstraint(Sketcher.Constraint("Vertical", 2))
sketch14.addConstraint(Sketcher.Constraint("Horizontal", 3))
sketch14.addConstraint(Sketcher.Constraint("DistanceX", 1, 1, 1, 2, 10.0))
sketch14.addConstraint(Sketcher.Constraint("DistanceY", 0, 2, 0, 1, 31.4))
sketch14.addConstraint(Sketcher.Constraint("DistanceX", 0, 2, -1, 1, 22.2))
sketch14.addConstraint(Sketcher.Constraint("DistanceY", 0, 2, -1, 1, 15.7))
pad10 = body18.newObject("PartDesign::Pad", "Pad009")
pad10.Profile = sketch14
pad10.Length = 22.75
doc.recompute()

boolean15 = body18.newObject("PartDesign::Boolean", "Boolean014")
boolean15.Type = "Fuse"
boolean15.addObjects([body17])
doc.recompute()

boolean16 = body18.newObject("PartDesign::Boolean", "Boolean015")
boolean16.Type = "Cut"
boolean16.addObjects([body15])
doc.recompute()

boolean17 = body18.newObject("PartDesign::Boolean", "Boolean016")
boolean17.Type = "Fuse"
boolean17.addObjects([body9])
body19 = doc.addObject("PartDesign::Body", "Body018")

sketch15 = body19.newObject("Sketcher::SketchObject", "Sketch014")
sketch15.AttachmentSupport = (doc.getObject("XY_Plane018"), [""])
sketch15.MapMode = "FlatFace"
sketch15.AttachmentOffset = App.Placement(App.Vector(0, 0, -11.5), App.Rotation())
sketch15.addGeometry(Part.LineSegment(App.Vector(-1.5, 10.1, 0), App.Vector(-1.5, 9.7, 0)), False)
sketch15.addGeometry(Part.LineSegment(App.Vector(-1.5, 9.7, 0), App.Vector(1.5, 9.7, 0)), False)
sketch15.addGeometry(Part.LineSegment(App.Vector(1.5, 9.7, 0), App.Vector(1.5, 10.1, 0)), False)
sketch15.addGeometry(Part.LineSegment(App.Vector(1.5, 10.1, 0), App.Vector(-1.5, 10.1, 0)), False)
sketch15.addConstraint(Sketcher.Constraint("Coincident", 0, 2, 1, 1))
sketch15.addConstraint(Sketcher.Constraint("Coincident", 1, 2, 2, 1))
sketch15.addConstraint(Sketcher.Constraint("Coincident", 2, 2, 3, 1))
sketch15.addConstraint(Sketcher.Constraint("Coincident", 3, 2, 0, 1))
sketch15.addConstraint(Sketcher.Constraint("Vertical", 0))
sketch15.addConstraint(Sketcher.Constraint("Horizontal", 1))
sketch15.addConstraint(Sketcher.Constraint("Vertical", 2))
sketch15.addConstraint(Sketcher.Constraint("Horizontal", 3))
sketch15.addConstraint(Sketcher.Constraint("DistanceX", 1, 1, 1, 2, 3.0))
sketch15.addConstraint(Sketcher.Constraint("DistanceY", 0, 2, 0, 1, 0.4))
sketch15.addConstraint(Sketcher.Constraint("DistanceX", 0, 2, -1, 1, 1.5))
sketch15.addConstraint(Sketcher.Constraint("DistanceY", -1, 1, 0, 2, 9.7))
pad11 = body19.newObject("PartDesign::Pad", "Pad010")
pad11.Profile = sketch15
pad11.Length = 23
body20 = doc.addObject("PartDesign::Body", "Body019")

sketch16 = body20.newObject("Sketcher::SketchObject", "Sketch015")
sketch16.AttachmentSupport = (doc.getObject("XY_Plane019"), [""])
sketch16.MapMode = "FlatFace"
sketch16.AttachmentOffset = App.Placement(App.Vector(0, 0, -11.5), App.Rotation())
sketch16.addGeometry(Part.LineSegment(App.Vector(-10, 10, 0), App.Vector(-10, -10, 0)), False)
sketch16.addGeometry(Part.LineSegment(App.Vector(-10, -10, 0), App.Vector(10, -10, 0)), False)
sketch16.addGeometry(Part.LineSegment(App.Vector(10, -10, 0), App.Vector(10, 10, 0)), False)
sketch16.addGeometry(Part.LineSegment(App.Vector(10, 10, 0), App.Vector(-10, 10, 0)), False)
sketch16.addConstraint(Sketcher.Constraint("Coincident", 0, 2, 1, 1))
sketch16.addConstraint(Sketcher.Constraint("Coincident", 1, 2, 2, 1))
sketch16.addConstraint(Sketcher.Constraint("Coincident", 2, 2, 3, 1))
sketch16.addConstraint(Sketcher.Constraint("Coincident", 3, 2, 0, 1))
sketch16.addConstraint(Sketcher.Constraint("Vertical", 0))
sketch16.addConstraint(Sketcher.Constraint("Horizontal", 1))
sketch16.addConstraint(Sketcher.Constraint("Vertical", 2))
sketch16.addConstraint(Sketcher.Constraint("Horizontal", 3))
sketch16.addConstraint(Sketcher.Constraint("Symmetric", 0, 2, 2, 2, -1, 1))
sketch16.addConstraint(Sketcher.Constraint("Equal", 3, 0))
sketch16.addConstraint(Sketcher.Constraint("DistanceX", 1, 1, 1, 2, 19.4))
pad12 = body20.newObject("PartDesign::Pad", "Pad011")
pad12.Profile = sketch16
pad12.Length = 23
doc.recompute()

boolean18 = body20.newObject("PartDesign::Boolean", "Boolean017")
boolean18.Type = "Fuse"
boolean18.addObjects([body19])
body21 = doc.addObject("PartDesign::Body", "Body020")

sketch17 = body21.newObject("Sketcher::SketchObject", "Sketch016")
sketch17.AttachmentSupport = (doc.getObject("XY_Plane020"), [""])
sketch17.MapMode = "FlatFace"
sketch17.AttachmentOffset = App.Placement(App.Vector(0, 0, -11), App.Rotation())
sketch17.addGeometry(Part.LineSegment(App.Vector(-12, 12, 0), App.Vector(-12, -12, 0)), False)
sketch17.addGeometry(Part.LineSegment(App.Vector(-12, -12, 0), App.Vector(12, -12, 0)), False)
sketch17.addGeometry(Part.LineSegment(App.Vector(12, -12, 0), App.Vector(12, 12, 0)), False)
sketch17.addGeometry(Part.LineSegment(App.Vector(12, 12, 0), App.Vector(-12, 12, 0)), False)
sketch17.addConstraint(Sketcher.Constraint("Coincident", 0, 2, 1, 1))
sketch17.addConstraint(Sketcher.Constraint("Coincident", 1, 2, 2, 1))
sketch17.addConstraint(Sketcher.Constraint("Coincident", 2, 2, 3, 1))
sketch17.addConstraint(Sketcher.Constraint("Coincident", 3, 2, 0, 1))
sketch17.addConstraint(Sketcher.Constraint("Vertical", 0))
sketch17.addConstraint(Sketcher.Constraint("Horizontal", 1))
sketch17.addConstraint(Sketcher.Constraint("Vertical", 2))
sketch17.addConstraint(Sketcher.Constraint("Horizontal", 3))
sketch17.addConstraint(Sketcher.Constraint("Symmetric", 0, 2, 2, 2, -1, 1))
sketch17.addConstraint(Sketcher.Constraint("Equal", 3, 0))
sketch17.addConstraint(Sketcher.Constraint("DistanceX", 1, 1, 1, 2, 24.4))
pad13 = body21.newObject("PartDesign::Pad", "Pad012")
pad13.Profile = sketch17
pad13.Length = 22
doc.recompute()

boolean19 = body21.newObject("PartDesign::Boolean", "Boolean018")
boolean19.Type = "Cut"
boolean19.addObjects([body20])
body22 = doc.addObject("PartDesign::Body", "Body021")
doc.recompute()

body21.Placement = App.Placement(App.Vector(0, 0, 11.75), App.Rotation(App.Vector(0, 0, 1), 0))
boolean20 = body22.newObject("PartDesign::Boolean", "Boolean019")
boolean20.Type = "Fuse"
boolean20.addObjects([body21])
doc.recompute()

boolean21 = body22.newObject("PartDesign::Boolean", "Boolean020")
boolean21.Type = "Fuse"
boolean21.addObjects([body18])

doc.recompute()
